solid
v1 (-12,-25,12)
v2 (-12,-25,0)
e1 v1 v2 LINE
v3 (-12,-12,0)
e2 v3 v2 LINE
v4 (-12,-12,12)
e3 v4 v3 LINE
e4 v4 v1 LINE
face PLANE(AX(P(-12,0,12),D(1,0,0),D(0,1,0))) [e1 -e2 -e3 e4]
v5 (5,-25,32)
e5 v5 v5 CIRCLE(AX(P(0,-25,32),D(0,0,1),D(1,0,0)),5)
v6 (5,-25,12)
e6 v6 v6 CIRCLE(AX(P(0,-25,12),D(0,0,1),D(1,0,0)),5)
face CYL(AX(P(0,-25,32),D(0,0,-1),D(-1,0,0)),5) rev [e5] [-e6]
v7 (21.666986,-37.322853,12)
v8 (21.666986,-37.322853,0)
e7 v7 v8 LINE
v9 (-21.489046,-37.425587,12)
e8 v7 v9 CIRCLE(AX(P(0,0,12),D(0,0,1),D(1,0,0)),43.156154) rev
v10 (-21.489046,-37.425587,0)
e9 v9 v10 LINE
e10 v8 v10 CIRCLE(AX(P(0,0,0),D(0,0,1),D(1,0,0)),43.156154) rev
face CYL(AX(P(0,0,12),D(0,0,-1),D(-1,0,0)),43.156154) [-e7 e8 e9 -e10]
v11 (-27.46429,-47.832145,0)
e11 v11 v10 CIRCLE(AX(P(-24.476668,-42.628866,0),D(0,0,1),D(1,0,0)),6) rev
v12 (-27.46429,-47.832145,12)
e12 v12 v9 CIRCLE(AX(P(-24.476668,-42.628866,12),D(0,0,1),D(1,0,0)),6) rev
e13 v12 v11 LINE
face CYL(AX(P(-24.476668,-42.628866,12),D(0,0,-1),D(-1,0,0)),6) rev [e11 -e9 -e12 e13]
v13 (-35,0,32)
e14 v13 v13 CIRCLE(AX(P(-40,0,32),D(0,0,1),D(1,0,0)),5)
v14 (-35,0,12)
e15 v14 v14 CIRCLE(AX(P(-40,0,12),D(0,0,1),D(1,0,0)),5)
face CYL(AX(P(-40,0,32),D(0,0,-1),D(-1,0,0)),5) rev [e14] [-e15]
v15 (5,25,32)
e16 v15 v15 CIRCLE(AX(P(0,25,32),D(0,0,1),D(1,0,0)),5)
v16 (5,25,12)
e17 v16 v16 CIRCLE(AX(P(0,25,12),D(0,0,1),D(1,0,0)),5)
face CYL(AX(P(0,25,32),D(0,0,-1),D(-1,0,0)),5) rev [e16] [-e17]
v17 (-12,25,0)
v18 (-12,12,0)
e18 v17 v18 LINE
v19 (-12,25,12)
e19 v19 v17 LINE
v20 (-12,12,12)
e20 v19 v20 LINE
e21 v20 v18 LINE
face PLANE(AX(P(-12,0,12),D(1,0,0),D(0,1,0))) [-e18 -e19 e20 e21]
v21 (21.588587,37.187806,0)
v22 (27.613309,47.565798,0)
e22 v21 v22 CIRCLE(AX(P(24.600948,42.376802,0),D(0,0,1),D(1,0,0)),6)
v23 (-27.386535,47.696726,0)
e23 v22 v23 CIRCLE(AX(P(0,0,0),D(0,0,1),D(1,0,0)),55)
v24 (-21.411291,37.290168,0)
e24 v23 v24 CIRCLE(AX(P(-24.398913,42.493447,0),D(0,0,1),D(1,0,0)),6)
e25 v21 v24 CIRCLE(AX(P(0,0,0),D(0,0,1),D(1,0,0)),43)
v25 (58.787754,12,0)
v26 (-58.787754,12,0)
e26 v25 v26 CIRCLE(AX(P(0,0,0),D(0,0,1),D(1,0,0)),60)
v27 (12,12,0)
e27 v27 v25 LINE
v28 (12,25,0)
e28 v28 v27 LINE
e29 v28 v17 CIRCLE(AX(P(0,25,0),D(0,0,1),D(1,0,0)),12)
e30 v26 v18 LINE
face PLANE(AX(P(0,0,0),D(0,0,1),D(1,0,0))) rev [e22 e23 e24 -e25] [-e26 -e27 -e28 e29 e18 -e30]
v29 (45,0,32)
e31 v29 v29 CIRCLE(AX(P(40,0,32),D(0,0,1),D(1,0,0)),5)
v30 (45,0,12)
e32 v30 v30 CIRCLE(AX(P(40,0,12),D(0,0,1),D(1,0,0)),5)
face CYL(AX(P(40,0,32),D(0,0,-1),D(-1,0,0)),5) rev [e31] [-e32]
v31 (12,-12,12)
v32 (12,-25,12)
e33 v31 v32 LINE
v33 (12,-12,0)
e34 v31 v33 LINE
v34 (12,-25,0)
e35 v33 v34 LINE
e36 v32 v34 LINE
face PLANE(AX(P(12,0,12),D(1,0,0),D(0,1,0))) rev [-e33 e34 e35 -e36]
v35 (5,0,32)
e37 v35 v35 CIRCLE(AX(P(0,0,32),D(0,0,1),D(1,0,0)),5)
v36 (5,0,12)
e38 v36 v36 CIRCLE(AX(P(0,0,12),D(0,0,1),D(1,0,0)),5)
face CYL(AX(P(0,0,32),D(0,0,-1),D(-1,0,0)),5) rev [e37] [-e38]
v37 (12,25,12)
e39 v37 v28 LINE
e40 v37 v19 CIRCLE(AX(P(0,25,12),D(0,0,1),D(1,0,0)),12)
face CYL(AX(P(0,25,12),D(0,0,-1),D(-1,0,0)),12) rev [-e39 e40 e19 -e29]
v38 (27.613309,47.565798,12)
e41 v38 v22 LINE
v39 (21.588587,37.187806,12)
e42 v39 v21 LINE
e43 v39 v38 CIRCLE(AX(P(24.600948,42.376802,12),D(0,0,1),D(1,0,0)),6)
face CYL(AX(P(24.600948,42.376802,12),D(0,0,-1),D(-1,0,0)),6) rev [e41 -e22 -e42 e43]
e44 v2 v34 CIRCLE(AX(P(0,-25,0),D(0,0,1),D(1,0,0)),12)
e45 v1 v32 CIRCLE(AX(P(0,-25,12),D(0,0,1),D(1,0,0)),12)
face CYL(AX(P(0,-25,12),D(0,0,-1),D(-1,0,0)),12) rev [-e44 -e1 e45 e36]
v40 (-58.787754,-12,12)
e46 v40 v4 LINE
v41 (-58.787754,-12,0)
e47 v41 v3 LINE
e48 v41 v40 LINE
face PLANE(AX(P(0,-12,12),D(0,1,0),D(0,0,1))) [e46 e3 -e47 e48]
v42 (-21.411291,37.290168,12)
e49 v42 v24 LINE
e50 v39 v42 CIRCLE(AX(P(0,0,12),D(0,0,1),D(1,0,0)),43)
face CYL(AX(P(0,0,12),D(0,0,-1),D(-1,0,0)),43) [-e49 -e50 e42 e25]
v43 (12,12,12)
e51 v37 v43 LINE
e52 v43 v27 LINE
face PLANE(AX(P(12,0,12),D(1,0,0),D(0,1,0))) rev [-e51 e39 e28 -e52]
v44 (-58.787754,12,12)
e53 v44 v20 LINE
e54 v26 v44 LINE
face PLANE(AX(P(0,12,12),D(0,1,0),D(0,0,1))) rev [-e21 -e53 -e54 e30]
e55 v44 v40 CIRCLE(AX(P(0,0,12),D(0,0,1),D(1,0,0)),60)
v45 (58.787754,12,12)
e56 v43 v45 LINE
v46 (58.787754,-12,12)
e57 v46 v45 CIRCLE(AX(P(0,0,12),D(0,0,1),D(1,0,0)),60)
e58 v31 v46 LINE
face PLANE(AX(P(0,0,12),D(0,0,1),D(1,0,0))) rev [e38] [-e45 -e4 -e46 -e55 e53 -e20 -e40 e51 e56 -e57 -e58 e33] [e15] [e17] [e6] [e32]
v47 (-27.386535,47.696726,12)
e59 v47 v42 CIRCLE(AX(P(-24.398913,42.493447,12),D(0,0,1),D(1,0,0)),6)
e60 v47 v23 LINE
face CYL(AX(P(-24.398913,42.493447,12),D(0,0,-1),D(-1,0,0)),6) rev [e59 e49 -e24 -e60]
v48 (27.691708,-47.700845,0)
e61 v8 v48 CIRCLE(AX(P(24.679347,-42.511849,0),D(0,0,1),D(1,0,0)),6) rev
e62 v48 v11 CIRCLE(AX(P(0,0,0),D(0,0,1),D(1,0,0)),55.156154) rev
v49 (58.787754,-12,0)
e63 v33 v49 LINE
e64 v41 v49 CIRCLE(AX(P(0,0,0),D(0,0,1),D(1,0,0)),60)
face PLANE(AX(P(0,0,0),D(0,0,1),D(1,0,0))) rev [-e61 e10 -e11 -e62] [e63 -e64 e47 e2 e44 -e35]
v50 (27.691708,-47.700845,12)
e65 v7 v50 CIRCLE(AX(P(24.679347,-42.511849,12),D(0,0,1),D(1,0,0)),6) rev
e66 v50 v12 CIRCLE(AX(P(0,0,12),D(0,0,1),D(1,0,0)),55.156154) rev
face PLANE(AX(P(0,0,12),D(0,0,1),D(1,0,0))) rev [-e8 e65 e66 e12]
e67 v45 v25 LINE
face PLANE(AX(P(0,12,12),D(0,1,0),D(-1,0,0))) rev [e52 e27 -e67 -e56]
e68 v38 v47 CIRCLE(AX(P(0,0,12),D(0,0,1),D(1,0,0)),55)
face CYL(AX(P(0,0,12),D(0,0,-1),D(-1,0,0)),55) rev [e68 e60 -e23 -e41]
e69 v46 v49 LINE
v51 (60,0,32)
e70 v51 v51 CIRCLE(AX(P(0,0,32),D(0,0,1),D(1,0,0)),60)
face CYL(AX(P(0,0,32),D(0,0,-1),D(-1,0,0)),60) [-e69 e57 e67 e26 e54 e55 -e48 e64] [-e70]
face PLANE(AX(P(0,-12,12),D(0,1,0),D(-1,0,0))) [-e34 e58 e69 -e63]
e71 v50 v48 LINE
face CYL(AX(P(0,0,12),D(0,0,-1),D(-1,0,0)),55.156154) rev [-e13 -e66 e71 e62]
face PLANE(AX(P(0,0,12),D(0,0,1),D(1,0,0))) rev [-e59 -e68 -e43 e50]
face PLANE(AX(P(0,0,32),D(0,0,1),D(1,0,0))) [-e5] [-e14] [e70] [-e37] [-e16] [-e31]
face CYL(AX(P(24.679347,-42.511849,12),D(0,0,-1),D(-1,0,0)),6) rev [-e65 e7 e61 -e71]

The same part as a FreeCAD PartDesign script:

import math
import FreeCAD as App
import Part
import Sketcher
from FreeCAD import Vector

doc = App.newDocument("Part")
body = doc.addObject("PartDesign::Body", "Body")

# Sketch on XY plane
sketch1 = body.newObject("Sketcher::SketchObject", "Sketch")
sketch1.AttachmentSupport = (doc.getObject("XY_Plane"), [""])
sketch1.MapMode = "FlatFace"
sketch1.addGeometry(Part.Circle(Vector(0, 0, 0), Vector(0, 0, 1), 60), False)
sketch1.addGeometry(Part.Circle(Vector(0, -25, 0), Vector(0, 0, 1), 5), False)
sketch1.addGeometry(Part.Circle(Vector(-40, 0, 0), Vector(0, 0, 1), 5), False)
sketch1.addGeometry(Part.Circle(Vector(0, 0, 0), Vector(0, 0, 1), 5), False)
sketch1.addGeometry(Part.Circle(Vector(40, 0, 0), Vector(0, 0, 1), 5), False)
sketch1.addGeometry(Part.Circle(Vector(0, 25, 0), Vector(0, 0, 1), 5), False)
sketch1.addConstraint(Sketcher.Constraint("Coincident", 0, 3, -1, 1))
sketch1.addConstraint(Sketcher.Constraint("Coincident", 3, 3, -1, 1))
sketch1.addConstraint(Sketcher.Constraint("Equal", 1, 2))
sketch1.addConstraint(Sketcher.Constraint("Equal", 2, 3))
sketch1.addConstraint(Sketcher.Constraint("Equal", 3, 4))
sketch1.addConstraint(Sketcher.Constraint("Equal", 4, 5))
sketch1.addConstraint(Sketcher.Constraint("Symmetric", 2, 3, 4, 3, -1, 1))
sketch1.addConstraint(Sketcher.Constraint("Symmetric", 1, 3, 5, 3, -1, 1))
sketch1.addConstraint(Sketcher.Constraint("PointOnObject", 1, 3, -2))
sketch1.addConstraint(Sketcher.Constraint("PointOnObject", 2, 3, -1))
sketch1.addConstraint(Sketcher.Constraint("Diameter", 0, 120.0))
sketch1.addConstraint(Sketcher.Constraint("Diameter", 1, 10.0))
sketch1.addConstraint(Sketcher.Constraint("DistanceY", 1, 3, -1, 1, 25.0))
sketch1.addConstraint(Sketcher.Constraint("DistanceX", 2, 3, -1, 1, 40.0))
pad1 = body.newObject("PartDesign::Pad", "Pad")
pad1.Profile = sketch1
pad1.Length = 32

# Sketch on XY plane
sketch2 = body.newObject("Sketcher::SketchObject", "Sketch001")
sketch2.AttachmentSupport = (doc.getObject("XY_Plane"), [""])
sketch2.MapMode = "FlatFace"
sketch2.addGeometry(Part.LineSegment(Vector(12, 12, 0), Vector(12, 25, 0)), False)
sketch2.addGeometry(Part.ArcOfCircle(Part.Circle(Vector(0, 25, 0), Vector(0, 0, 1), 12), math.radians(0), math.radians(180)), False)
sketch2.addGeometry(Part.LineSegment(Vector(-12, 25, 0), Vector(-12, 12, 0)), False)
sketch2.addGeometry(Part.LineSegment(Vector(-12, 12, 0), Vector(-59, 12, 0)), False)
sketch2.addGeometry(Part.ArcOfCircle(Part.Circle(Vector(0, 0, 0), Vector(0, 0, 1), 60), math.radians(168), math.radians(192)), False)
sketch2.addGeometry(Part.LineSegment(Vector(-59, -12, 0), Vector(-12, -12, 0)), False)
sketch2.addGeometry(Part.LineSegment(Vector(-12, -12, 0), Vector(-12, -25, 0)), False)
sketch2.addGeometry(Part.ArcOfCircle(Part.Circle(Vector(0, -25, 0), Vector(0, 0, 1), 12), math.radians(180), math.radians(360)), False)
sketch2.addGeometry(Part.LineSegment(Vector(12, -25, 0), Vector(12, -12, 0)), False)
sketch2.addGeometry(Part.LineSegment(Vector(12, -12, 0), Vector(59, -12, 0)), False)
sketch2.addGeometry(Part.ArcOfCircle(Part.Circle(Vector(0, 0, 0), Vector(0, 0, 1), 60), math.radians(-11.54), math.radians(0)), False)
sketch2.addGeometry(Part.ArcOfCircle(Part.Circle(Vector(0, 0, 0), Vector(0, 0, 1), 60), math.radians(0), math.radians(11.54)), False)
sketch2.addGeometry(Part.LineSegment(Vector(59, 12, 0), Vector(12, 12, 0)), False)
sketch2.addGeometry(Part.Circle(Vector(0, -25, 0), Vector(0, 0, 1), 5), False)
sketch2.addGeometry(Part.Circle(Vector(-40, 0, 0), Vector(0, 0, 1), 5), False)
sketch2.addGeometry(Part.Circle(Vector(0, 0, 0), Vector(0, 0, 1), 5), False)
sketch2.addGeometry(Part.Circle(Vector(40, 0, 0), Vector(0, 0, 1), 5), False)
sketch2.addGeometry(Part.Circle(Vector(0, 25, 0), Vector(0, 0, 1), 5), False)
sketch2.addConstraint(Sketcher.Constraint("Tangent", 0, 2, 1, 1))
sketch2.addConstraint(Sketcher.Constraint("Tangent", 1, 2, 2, 1))
sketch2.addConstraint(Sketcher.Constraint("Coincident", 2, 2, 3, 1))
sketch2.addConstraint(Sketcher.Constraint("Coincident", 3, 2, 4, 1))
sketch2.addConstraint(Sketcher.Constraint("Coincident", 4, 2, 5, 1))
sketch2.addConstraint(Sketcher.Constraint("Coincident", 5, 2, 6, 1))
sketch2.addConstraint(Sketcher.Constraint("Tangent", 6, 2, 7, 1))
sketch2.addConstraint(Sketcher.Constraint("Tangent", 7, 2, 8, 1))
sketch2.addConstraint(Sketcher.Constraint("Coincident", 8, 2, 9, 1))
sketch2.addConstraint(Sketcher.Constraint("Coincident", 9, 2, 10, 1))
sketch2.addConstraint(Sketcher.Constraint("Tangent", 10, 2, 11, 1))
sketch2.addConstraint(Sketcher.Constraint("Coincident", 11, 2, 12, 1))
sketch2.addConstraint(Sketcher.Constraint("Coincident", 12, 2, 0, 1))
sketch2.addConstraint(Sketcher.Constraint("Vertical", 0))
sketch2.addConstraint(Sketcher.Constraint("Vertical", 2))
sketch2.addConstraint(Sketcher.Constraint("Horizontal", 3))
sketch2.addConstraint(Sketcher.Constraint("Horizontal", 5))
sketch2.addConstraint(Sketcher.Constraint("Vertical", 6))
sketch2.addConstraint(Sketcher.Constraint("Vertical", 8))
sketch2.addConstraint(Sketcher.Constraint("Horizontal", 9))
sketch2.addConstraint(Sketcher.Constraint("Horizontal", 12))
sketch2.addConstraint(Sketcher.Constraint("Coincident", 4, 3, -1, 1))
sketch2.addConstraint(Sketcher.Constraint("Coincident", 10, 3, -1, 1))
sketch2.addConstraint(Sketcher.Constraint("Coincident", 15, 3, -1, 1))
sketch2.addConstraint(Sketcher.Constraint("Coincident", 13, 3, 7, 3))
sketch2.addConstraint(Sketcher.Constraint("Coincident", 17, 3, 1, 3))
sketch2.addConstraint(Sketcher.Constraint("Equal", 1, 7))
sketch2.addConstraint(Sketcher.Constraint("Equal", 4, 10))
sketch2.addConstraint(Sketcher.Constraint("Equal", 10, 11))
sketch2.addConstraint(Sketcher.Constraint("Equal", 13, 14))
sketch2.addConstraint(Sketcher.Constraint("Equal", 14, 15))
sketch2.addConstraint(Sketcher.Constraint("Equal", 15, 16))
sketch2.addConstraint(Sketcher.Constraint("Equal", 16, 17))
sketch2.addConstraint(Sketcher.Constraint("Symmetric", 1, 3, 7, 3, -1, 1))
sketch2.addConstraint(Sketcher.Constraint("Symmetric", 14, 3, 16, 3, -1, 1))
sketch2.addConstraint(Sketcher.Constraint("Symmetric", 5, 2, 8, 2, -2))
sketch2.addConstraint(Sketcher.Constraint("PointOnObject", 14, 3, -1))
sketch2.addConstraint(Sketcher.Constraint("PointOnObject", 10, 2, -1))
sketch2.addConstraint(Sketcher.Constraint("Horizontal", 3, 2, 11, 2))
sketch2.addConstraint(Sketcher.Constraint("Vertical", 3, 2, 4, 2))
sketch2.addConstraint(Sketcher.Constraint("Diameter", 13, 10.0))
sketch2.addConstraint(Sketcher.Constraint("Radius", 1, 12.0))
sketch2.addConstraint(Sketcher.Constraint("Radius", 4, 60.0))
sketch2.addConstraint(Sketcher.Constraint("DistanceY", 0, 1, 0, 2, 13.0))
sketch2.addConstraint(Sketcher.Constraint("DistanceY", -1, 1, 1, 3, 25.0))
sketch2.addConstraint(Sketcher.Constraint("DistanceX", 14, 3, -1, 1, 40.0))
pocket1 = body.newObject("PartDesign::Pocket", "Pocket")
pocket1.Profile = sketch2
pocket1.Length = 12
pocket1.Reversed = True

# Sketch on XY plane
sketch3 = body.newObject("Sketcher::SketchObject", "Sketch002")
sketch3.AttachmentSupport = (doc.getObject("XY_Plane"), [""])
sketch3.MapMode = "FlatFace"
sketch3.addGeometry(Part.ArcOfCircle(Part.Circle(Vector(0, 0, 0), Vector(0, 0, 1), 55), math.radians(60), math.radians(120)), False)
sketch3.addGeometry(Part.ArcOfCircle(Part.Circle(Vector(-24, 42, 0), Vector(0, 0, 1), 6), math.radians(120), math.radians(300)), False)
sketch3.addGeometry(Part.ArcOfCircle(Part.Circle(Vector(0, 0, 0), Vector(0, 0, 1), 43), math.radians(60), math.radians(120)), False)
sketch3.addGeometry(Part.ArcOfCircle(Part.Circle(Vector(25, 42, 0), Vector(0, 0, 1), 6), math.radians(-120), math.radians(60)), False)
sketch3.addGeometry(Part.ArcOfCircle(Part.Circle(Vector(-24, -43, 0), Vector(0, 0, 1), 6), math.radians(60), math.radians(240)), False)
sketch3.addGeometry(Part.ArcOfCircle(Part.Circle(Vector(0, 0, 0), Vector(0, 0, 1), 55), math.radians(-120), math.radians(-60)), False)
sketch3.addGeometry(Part.ArcOfCircle(Part.Circle(Vector(25, -43, 0), Vector(0, 0, 1), 6), math.radians(-60), math.radians(120)), False)
sketch3.addGeometry(Part.ArcOfCircle(Part.Circle(Vector(0, 0, 0), Vector(0, 0, 1), 43), math.radians(-120), math.radians(-60)), False)
sketch3.addConstraint(Sketcher.Constraint("Tangent", 0, 2, 1, 1))
sketch3.addConstraint(Sketcher.Constraint("Tangent", 1, 2, 2, 2))
sketch3.addConstraint(Sketcher.Constraint("Tangent", 2, 1, 3, 1))
sketch3.addConstraint(Sketcher.Constraint("Tangent", 3, 2, 0, 1))
sketch3.addConstraint(Sketcher.Constraint("Tangent", 4, 2, 5, 1))
sketch3.addConstraint(Sketcher.Constraint("Tangent", 5, 2, 6, 1))
sketch3.addConstraint(Sketcher.Constraint("Tangent", 6, 2, 7, 2))
sketch3.addConstraint(Sketcher.Constraint("Tangent", 7, 1, 4, 1))
sketch3.addConstraint(Sketcher.Constraint("Coincident", 0, 3, -1, 1))
sketch3.addConstraint(Sketcher.Constraint("Coincident", 2, 3, -1, 1))
sketch3.addConstraint(Sketcher.Constraint("Coincident", 5, 3, -1, 1))
sketch3.addConstraint(Sketcher.Constraint("Coincident", 7, 3, -1, 1))
sketch3.addConstraint(Sketcher.Constraint("Equal", 3, 4))
sketch3.addConstraint(Sketcher.Constraint("Radius", 0, 55.0))
sketch3.addConstraint(Sketcher.Constraint("Radius", 1, 6.0))
sketch3.addConstraint(Sketcher.Constraint("Radius", 5, 55.156154))
sketch3.addConstraint(Sketcher.Constraint("DistanceY", -1, 1, 3, 2, 47.565798))
sketch3.addConstraint(Sketcher.Constraint("DistanceX", 3, 3, 6, 3, 0.078399))
sketch3.addConstraint(Sketcher.Constraint("DistanceX", 1, 2, 3, 2, 49.0246))
sketch3.addConstraint(Sketcher.Constraint("DistanceY", 4, 2, 5, 2, 0.1313))
pocket2 = body.newObject("PartDesign::Pocket", "Pocket001")
pocket2.Profile = sketch3
pocket2.Length = 12
pocket2.Reversed = True

doc.recompute()
